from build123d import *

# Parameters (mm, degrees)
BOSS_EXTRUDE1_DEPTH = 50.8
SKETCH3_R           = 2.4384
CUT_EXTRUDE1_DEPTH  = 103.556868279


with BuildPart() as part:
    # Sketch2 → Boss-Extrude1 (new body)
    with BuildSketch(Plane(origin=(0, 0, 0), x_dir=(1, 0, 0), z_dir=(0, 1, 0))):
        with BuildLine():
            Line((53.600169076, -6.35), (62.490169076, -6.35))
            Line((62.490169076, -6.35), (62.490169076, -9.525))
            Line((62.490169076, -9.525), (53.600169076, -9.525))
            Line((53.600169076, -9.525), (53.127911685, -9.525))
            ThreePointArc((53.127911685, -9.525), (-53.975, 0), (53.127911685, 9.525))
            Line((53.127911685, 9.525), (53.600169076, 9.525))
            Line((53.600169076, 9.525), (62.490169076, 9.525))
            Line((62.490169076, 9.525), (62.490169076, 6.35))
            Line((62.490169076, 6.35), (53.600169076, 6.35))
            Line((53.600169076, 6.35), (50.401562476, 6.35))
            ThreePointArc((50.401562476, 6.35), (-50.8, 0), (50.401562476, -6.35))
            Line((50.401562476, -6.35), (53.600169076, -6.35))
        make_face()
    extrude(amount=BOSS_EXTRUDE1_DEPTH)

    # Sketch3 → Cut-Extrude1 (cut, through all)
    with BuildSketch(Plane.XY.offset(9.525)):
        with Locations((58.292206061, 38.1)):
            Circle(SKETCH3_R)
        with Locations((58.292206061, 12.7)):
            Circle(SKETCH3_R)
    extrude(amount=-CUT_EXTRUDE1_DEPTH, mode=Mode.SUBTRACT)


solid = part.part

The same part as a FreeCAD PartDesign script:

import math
import FreeCAD as App
import Part
import Sketcher

V = App.Vector
Q = App.Units.Quantity

doc = App.newDocument("Part")
body = doc.addObject("PartDesign::Body", "Body")

# Sketch on XZ plane
sketch1 = body.newObject("Sketcher::SketchObject", "Sketch")
sketch1.AttachmentSupport = (doc.getObject("XZ_Plane"), [""])
sketch1.MapMode = "FlatFace"
sketch1.addGeometry([
    Part.LineSegment(V(62.490169, 9.525, 0), V(62.490169, 6.35, 0)),  # 0
    Part.LineSegment(V(62.490169, 6.35, 0), V(50.401562, 6.35, 0)),  # 1
    Part.ArcOfCircle(Part.Circle(V(0, 0, 0), V(0, 0, 1), 50.8), math.radians(7.180756), math.radians(352.819244)),  # 2
    Part.LineSegment(V(50.401562, -6.35, 0), V(62.490169, -6.35, 0)),  # 3
    Part.LineSegment(V(62.490169, -6.35, 0), V(62.490169, -9.525, 0)),  # 4
    Part.LineSegment(V(62.490169, -9.525, 0), V(53.127912, -9.525, 0)),  # 5
    Part.ArcOfCircle(Part.Circle(V(0, 0, 0), V(0, 0, 1), 53.975), math.radians(10.164249), math.radians(349.835751)),  # 6
    Part.LineSegment(V(53.127912, 9.525, 0), V(62.490169, 9.525, 0)),  # 7
], False)
sketch1.addConstraint([
    Sketcher.Constraint("Coincident", 0, 2, 1, 1),
    Sketcher.Constraint("Coincident", 1, 2, 2, 1),
    Sketcher.Constraint("Coincident", 2, 2, 3, 1),
    Sketcher.Constraint("Coincident", 3, 2, 4, 1),
    Sketcher.Constraint("Coincident", 4, 2, 5, 1),
    Sketcher.Constraint("Coincident", 5, 2, 6, 2),
    Sketcher.Constraint("Coincident", 6, 1, 7, 1),
    Sketcher.Constraint("Coincident", 7, 2, 0, 1),
    Sketcher.Constraint("Vertical", 0),
    Sketcher.Constraint("Horizontal", 1),
    Sketcher.Constraint("Horizontal", 3),
    Sketcher.Constraint("Vertical", 4),
    Sketcher.Constraint("Horizontal", 5),
    Sketcher.Constraint("Horizontal", 7),
    Sketcher.Constraint("Coincident", 2, 3, -1, 1),
    Sketcher.Constraint("Coincident", 6, 3, -1, 1),
    Sketcher.Constraint("Symmetric", 0, 2, 3, 2, -1),
    Sketcher.Constraint("Vertical", 5, 2, 6, 1),
    Sketcher.Constraint("Radius", 2, Q("2 in")),
    Sketcher.Constraint("Radius", 6, Q("2.125 in")),
    Sketcher.Constraint("DistanceY", 2, 2, 1, 2, Q("0.5 in")),
    Sketcher.Constraint("DistanceY", 0, 2, 0, 1, Q("0.125 in")),
    Sketcher.Constraint("DistanceX", 1, 2, 1, 1, Q("12.088607 mm")),
])
pad1 = body.newObject("PartDesign::Pad", "Pad")
pad1.Profile = sketch1
pad1.Length = Q("2 in")
pad1.Reversed = True

# Sketch on XY plane
sketch2 = body.newObject("Sketcher::SketchObject", "Sketch001")
sketch2.AttachmentSupport = (doc.getObject("XY_Plane"), [""])
sketch2.MapMode = "FlatFace"
sketch2.AttachmentOffset = App.Placement(V(0, 0, 0.375 * 25.4), App.Rotation())
sketch2.addGeometry([
    Part.Circle(V(58.292206, 38.1, 0), V(0, 0, 1), 2.4384),
    Part.Circle(V(58.292206, 12.7, 0), V(0, 0, 1), 2.4384),
], False)
sketch2.addConstraint([
    Sketcher.Constraint("Equal", 0, 1),
    Sketcher.Constraint("Vertical", 0, 3, 1, 3),
    Sketcher.Constraint("Diameter", 0, Q("0.192 in")),
    Sketcher.Constraint("DistanceY", 1, 3, 0, 3, Q("1 in")),
    Sketcher.Constraint("DistanceY", -1, 1, 0, 3, Q("1.5 in")),
    Sketcher.Constraint("DistanceX", -1, 1, 0, 3, Q("58.292206 mm")),
])
pocket1 = body.newObject("PartDesign::Pocket", "Pocket")
pocket1.Profile = sketch2
pocket1.Type = "ThroughAll"

doc.recompute()
